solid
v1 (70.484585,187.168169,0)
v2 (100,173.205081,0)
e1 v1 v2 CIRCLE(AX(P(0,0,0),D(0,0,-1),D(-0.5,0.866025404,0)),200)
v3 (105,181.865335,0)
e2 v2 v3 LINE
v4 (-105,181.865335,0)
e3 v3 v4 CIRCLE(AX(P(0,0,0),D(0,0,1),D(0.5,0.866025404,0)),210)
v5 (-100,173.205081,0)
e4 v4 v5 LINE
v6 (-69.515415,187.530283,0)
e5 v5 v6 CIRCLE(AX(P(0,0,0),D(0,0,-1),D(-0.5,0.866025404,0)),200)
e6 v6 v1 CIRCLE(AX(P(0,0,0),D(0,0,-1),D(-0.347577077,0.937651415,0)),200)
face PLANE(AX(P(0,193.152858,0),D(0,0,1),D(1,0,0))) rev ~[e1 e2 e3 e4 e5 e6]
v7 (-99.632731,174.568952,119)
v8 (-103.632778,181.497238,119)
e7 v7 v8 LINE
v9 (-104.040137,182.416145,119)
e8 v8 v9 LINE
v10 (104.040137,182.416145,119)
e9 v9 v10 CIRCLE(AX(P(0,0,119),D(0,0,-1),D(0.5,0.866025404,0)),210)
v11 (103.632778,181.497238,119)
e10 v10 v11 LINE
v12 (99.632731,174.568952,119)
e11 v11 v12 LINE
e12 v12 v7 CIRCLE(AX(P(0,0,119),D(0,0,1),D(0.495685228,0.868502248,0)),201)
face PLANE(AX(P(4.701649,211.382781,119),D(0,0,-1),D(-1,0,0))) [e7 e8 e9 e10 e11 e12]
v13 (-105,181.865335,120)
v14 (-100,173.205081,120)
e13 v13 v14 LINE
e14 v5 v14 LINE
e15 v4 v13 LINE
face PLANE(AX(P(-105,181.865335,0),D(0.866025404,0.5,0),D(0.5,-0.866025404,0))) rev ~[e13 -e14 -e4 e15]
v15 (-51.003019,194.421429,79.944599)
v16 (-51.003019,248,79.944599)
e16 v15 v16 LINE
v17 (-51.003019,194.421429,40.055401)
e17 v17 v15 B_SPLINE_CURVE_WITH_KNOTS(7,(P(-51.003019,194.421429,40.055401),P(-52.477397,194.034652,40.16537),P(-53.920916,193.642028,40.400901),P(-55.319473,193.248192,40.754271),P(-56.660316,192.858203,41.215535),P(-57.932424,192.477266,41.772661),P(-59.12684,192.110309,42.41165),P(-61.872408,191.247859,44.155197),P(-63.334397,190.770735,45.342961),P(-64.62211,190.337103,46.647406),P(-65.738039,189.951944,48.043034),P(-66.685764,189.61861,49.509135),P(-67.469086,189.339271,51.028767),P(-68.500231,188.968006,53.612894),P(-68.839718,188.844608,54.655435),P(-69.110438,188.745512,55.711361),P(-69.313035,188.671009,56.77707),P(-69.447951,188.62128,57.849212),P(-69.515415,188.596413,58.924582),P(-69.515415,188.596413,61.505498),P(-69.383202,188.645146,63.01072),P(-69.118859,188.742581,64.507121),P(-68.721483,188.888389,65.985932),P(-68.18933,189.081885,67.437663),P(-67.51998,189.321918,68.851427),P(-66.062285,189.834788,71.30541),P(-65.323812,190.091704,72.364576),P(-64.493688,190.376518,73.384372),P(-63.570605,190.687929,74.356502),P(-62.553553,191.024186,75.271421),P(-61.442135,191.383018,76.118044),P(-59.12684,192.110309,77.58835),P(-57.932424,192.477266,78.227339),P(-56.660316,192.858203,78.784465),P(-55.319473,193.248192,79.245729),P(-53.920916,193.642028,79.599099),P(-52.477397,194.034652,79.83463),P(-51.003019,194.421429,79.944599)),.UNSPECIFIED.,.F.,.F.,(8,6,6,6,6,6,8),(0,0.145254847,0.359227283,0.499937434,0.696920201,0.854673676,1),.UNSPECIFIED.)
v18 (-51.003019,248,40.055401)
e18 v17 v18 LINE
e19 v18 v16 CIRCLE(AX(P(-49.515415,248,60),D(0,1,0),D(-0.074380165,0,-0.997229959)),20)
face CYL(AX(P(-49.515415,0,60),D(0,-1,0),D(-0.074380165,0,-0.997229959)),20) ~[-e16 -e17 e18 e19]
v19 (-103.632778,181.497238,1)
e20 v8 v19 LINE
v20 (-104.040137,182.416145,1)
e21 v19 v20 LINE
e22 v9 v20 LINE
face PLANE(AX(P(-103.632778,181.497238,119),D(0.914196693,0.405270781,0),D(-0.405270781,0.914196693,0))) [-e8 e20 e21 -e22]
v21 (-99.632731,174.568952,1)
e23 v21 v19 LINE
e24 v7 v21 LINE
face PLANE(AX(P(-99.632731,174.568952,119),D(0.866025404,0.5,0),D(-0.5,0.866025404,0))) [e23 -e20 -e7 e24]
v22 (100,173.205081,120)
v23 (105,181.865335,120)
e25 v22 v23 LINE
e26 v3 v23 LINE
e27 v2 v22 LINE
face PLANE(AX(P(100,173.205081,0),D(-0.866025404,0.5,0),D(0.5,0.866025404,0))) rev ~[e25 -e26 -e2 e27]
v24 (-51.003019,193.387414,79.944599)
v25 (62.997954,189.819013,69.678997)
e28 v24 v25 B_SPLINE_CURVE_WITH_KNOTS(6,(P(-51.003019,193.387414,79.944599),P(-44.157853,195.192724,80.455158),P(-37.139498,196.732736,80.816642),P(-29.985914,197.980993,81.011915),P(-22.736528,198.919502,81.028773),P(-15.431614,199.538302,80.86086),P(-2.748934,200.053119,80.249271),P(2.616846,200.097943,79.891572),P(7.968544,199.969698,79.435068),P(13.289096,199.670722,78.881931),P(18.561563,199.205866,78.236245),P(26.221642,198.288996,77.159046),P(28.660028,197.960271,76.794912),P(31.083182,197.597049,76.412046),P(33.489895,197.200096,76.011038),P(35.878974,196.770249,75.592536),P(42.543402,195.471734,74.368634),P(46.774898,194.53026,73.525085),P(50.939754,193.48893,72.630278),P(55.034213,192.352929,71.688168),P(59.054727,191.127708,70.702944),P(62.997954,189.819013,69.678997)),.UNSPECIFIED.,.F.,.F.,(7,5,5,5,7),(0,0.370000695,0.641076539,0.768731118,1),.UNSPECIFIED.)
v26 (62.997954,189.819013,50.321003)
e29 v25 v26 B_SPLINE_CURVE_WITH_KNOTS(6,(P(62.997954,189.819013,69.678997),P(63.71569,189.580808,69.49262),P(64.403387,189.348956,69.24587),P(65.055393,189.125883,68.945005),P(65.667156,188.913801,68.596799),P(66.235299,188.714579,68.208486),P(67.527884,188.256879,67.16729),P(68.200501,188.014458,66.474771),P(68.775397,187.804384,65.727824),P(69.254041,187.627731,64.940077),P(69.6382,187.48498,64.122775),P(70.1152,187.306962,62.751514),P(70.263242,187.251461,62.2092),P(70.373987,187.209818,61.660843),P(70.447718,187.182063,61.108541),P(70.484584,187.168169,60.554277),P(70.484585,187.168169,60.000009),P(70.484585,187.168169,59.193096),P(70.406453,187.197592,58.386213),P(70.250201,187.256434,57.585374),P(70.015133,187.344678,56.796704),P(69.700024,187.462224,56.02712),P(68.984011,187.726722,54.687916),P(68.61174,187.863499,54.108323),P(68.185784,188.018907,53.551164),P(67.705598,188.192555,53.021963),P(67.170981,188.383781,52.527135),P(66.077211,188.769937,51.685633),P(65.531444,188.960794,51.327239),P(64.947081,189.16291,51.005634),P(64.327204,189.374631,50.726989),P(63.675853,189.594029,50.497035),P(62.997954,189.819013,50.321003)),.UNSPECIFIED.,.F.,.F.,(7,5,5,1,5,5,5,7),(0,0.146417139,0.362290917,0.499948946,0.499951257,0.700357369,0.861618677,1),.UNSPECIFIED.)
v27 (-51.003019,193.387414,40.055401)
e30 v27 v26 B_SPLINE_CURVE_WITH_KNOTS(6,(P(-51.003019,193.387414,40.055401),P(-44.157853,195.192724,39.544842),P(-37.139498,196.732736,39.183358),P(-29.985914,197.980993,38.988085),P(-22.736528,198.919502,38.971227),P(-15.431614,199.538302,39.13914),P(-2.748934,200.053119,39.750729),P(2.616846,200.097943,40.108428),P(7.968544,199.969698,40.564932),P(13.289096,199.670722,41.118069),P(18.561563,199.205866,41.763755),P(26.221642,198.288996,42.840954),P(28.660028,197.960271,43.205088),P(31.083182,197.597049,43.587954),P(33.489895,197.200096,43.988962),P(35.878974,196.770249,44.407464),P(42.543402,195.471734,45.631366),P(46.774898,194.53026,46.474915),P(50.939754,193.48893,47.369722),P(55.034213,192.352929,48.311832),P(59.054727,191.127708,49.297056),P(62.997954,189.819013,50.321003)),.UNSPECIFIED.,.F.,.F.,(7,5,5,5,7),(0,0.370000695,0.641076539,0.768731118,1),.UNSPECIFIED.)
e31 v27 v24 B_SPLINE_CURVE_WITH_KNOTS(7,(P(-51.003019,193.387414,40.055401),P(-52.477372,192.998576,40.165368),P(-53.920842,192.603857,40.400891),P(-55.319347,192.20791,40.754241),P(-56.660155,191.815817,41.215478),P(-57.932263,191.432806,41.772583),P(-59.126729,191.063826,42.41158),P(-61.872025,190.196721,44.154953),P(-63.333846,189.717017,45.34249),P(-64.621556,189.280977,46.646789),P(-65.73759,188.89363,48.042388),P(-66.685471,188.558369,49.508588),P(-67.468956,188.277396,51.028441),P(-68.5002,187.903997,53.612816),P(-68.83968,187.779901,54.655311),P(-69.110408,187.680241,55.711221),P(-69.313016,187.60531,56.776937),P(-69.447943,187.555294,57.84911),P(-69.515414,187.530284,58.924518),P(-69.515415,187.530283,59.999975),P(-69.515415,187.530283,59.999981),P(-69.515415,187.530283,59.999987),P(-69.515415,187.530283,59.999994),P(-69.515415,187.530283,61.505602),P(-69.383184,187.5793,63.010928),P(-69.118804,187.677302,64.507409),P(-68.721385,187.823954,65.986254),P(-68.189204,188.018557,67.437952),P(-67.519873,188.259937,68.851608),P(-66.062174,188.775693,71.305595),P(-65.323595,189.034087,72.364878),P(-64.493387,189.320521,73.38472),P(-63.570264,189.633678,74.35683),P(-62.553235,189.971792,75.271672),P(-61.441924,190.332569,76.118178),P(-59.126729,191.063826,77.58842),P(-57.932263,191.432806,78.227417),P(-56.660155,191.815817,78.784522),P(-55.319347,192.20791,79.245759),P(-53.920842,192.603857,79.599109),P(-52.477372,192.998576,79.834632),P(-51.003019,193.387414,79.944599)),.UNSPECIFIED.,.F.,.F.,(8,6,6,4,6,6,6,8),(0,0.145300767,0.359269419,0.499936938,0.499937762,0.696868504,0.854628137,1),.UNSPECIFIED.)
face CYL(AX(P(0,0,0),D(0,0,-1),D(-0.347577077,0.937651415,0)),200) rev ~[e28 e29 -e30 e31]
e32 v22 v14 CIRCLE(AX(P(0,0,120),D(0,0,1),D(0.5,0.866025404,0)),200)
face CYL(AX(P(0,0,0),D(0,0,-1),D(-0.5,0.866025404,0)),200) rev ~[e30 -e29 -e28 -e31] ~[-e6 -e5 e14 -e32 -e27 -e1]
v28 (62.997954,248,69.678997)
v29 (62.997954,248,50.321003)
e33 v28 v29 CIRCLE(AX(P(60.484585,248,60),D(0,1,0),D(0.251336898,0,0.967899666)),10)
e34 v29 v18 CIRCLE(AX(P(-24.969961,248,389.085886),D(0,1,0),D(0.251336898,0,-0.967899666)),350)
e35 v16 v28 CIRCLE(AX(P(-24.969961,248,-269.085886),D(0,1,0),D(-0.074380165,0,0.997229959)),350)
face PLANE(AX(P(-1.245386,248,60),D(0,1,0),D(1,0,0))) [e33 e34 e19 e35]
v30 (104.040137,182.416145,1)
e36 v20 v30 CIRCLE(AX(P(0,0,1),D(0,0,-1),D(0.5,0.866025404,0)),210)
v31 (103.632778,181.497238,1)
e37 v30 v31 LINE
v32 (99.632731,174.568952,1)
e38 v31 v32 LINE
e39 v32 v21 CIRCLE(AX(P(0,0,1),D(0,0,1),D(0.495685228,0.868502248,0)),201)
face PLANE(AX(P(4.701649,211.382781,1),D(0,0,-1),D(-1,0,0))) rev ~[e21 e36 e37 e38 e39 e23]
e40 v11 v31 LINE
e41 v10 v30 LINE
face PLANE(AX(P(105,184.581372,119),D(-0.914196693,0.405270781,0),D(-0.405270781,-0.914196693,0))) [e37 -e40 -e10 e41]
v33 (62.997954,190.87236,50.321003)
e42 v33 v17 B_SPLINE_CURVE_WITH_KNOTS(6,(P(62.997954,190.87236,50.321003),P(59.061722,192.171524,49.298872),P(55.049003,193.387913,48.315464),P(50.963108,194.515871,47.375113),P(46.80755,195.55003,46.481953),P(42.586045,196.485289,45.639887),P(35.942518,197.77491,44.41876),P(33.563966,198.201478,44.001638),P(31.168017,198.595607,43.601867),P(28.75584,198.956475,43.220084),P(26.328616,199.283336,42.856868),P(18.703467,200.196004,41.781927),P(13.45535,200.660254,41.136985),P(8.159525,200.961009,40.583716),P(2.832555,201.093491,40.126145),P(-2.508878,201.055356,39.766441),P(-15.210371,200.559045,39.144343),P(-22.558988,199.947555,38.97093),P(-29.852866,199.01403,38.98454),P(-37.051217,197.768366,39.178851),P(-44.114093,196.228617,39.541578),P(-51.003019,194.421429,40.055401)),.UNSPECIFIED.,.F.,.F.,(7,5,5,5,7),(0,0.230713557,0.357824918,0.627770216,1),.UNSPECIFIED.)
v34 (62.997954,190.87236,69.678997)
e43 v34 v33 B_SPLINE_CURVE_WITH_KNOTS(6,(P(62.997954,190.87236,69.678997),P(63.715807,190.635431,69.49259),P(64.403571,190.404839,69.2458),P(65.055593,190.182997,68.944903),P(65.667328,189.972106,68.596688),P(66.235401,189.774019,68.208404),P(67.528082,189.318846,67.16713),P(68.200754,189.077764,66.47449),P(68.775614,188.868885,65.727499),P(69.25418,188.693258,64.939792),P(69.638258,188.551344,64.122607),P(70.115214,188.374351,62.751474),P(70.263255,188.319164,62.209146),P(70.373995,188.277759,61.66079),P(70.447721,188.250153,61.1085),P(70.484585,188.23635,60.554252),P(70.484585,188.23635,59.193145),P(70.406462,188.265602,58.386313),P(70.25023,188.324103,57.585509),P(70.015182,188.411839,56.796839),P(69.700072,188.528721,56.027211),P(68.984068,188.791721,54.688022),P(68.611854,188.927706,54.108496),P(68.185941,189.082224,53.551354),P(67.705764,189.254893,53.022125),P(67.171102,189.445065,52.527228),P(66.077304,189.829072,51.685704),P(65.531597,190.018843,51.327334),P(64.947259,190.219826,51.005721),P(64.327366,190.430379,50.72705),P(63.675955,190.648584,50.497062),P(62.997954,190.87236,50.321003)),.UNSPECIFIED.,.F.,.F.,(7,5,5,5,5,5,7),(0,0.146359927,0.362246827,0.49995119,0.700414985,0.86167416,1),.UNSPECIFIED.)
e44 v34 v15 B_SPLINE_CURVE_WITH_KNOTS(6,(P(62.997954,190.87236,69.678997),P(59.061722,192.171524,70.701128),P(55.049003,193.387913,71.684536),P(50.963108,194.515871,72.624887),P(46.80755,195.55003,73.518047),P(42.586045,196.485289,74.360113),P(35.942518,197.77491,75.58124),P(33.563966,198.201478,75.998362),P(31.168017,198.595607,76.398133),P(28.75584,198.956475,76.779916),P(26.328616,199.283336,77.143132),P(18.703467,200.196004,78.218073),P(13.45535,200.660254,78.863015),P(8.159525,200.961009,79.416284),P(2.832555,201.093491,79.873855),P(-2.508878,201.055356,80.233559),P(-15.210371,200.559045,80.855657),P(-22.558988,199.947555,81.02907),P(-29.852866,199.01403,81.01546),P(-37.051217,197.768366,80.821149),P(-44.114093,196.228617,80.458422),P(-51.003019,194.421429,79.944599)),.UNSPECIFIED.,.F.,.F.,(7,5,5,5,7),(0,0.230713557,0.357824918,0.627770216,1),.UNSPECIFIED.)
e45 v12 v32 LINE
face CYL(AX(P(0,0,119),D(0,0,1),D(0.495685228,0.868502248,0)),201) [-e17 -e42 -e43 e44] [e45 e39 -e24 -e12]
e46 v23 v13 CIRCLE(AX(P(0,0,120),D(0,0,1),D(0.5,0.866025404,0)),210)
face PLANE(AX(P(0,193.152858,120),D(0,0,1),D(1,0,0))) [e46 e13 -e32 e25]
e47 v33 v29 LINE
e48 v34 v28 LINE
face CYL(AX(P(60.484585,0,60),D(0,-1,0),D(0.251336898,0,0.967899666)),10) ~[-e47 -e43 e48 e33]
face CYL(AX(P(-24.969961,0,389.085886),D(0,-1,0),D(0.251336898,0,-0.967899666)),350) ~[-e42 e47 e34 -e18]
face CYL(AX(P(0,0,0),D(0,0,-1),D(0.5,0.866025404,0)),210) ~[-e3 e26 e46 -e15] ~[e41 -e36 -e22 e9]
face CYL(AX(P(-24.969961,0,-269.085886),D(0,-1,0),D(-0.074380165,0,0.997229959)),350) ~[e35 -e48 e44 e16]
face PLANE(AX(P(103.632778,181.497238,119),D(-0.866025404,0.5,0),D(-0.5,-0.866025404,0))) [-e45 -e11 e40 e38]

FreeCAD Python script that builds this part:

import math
import FreeCAD as App
import Part
import Sketcher
from FreeCAD import Vector
Q = App.Units.Quantity

doc = App.newDocument("Part")
body = doc.addObject("PartDesign::Body", "Body")

sketch1 = doc.addObject("Sketcher::SketchObject", "Sketch")
body.addObject(sketch1)
sketch1.AttachmentSupport = (doc.XY_Plane, [""])
sketch1.MapMode = "FlatFace"
sketch1.addGeometry([
    Part.LineSegment(Vector(-105, 181.865335, 0), Vector(-100, 173.205081, 0)),
    Part.ArcOfCircle(Part.Circle(Vector(0, 0, 0), Vector(0, 0, 1), 200), math.radians(60), math.radians(120)),
    Part.LineSegment(Vector(100, 173.205081, 0), Vector(105, 181.865335, 0)),
    Part.ArcOfCircle(Part.Circle(Vector(0, 0, 0), Vector(0, 0, 1), 210), math.radians(60), math.radians(120)),
], False)
sketch1.addConstraint([
    Sketcher.Constraint("Coincident", 0, 2, 1, 2),
    Sketcher.Constraint("Coincident", 1, 1, 2, 1),
    Sketcher.Constraint("Coincident", 2, 2, 3, 1),
    Sketcher.Constraint("Coincident", 3, 2, 0, 1),
    Sketcher.Constraint("Coincident", 1, 3, -1, 1),
    Sketcher.Constraint("Coincident", 3, 3, -1, 1),
    Sketcher.Constraint("Horizontal", 0, 2, 1, 1),
    Sketcher.Constraint("Horizontal", 2, 2, 3, 2),
    Sketcher.Constraint("Radius", 1, 200.0),
    Sketcher.Constraint("Radius", 3, 210.0),
    Sketcher.Constraint("Angle", 0, Q("-60 deg")),
    Sketcher.Constraint("DistanceX", 0, 2, -1, 1, 100.0),
])
pad1 = doc.addObject("PartDesign::Pad", "Pad")
body.addObject(pad1)
pad1.Profile = sketch1
pad1.Length = 120

sketch2 = doc.addObject("Sketcher::SketchObject", "Sketch001")
body.addObject(sketch2)
sketch2.AttachmentSupport = (doc.XY_Plane, [""])
sketch2.MapMode = "FlatFace"
sketch2.AttachmentOffset = App.Placement(Vector(0, 0, 119), App.Rotation())
sketch2.addGeometry([
    Part.ArcOfCircle(Part.Circle(Vector(0, 0, 0), Vector(0, 0, 1), 201), math.radians(60.285055), math.radians(119.714945)),
    Part.LineSegment(Vector(99.632731, 174.568952, 0), Vector(103.632778, 181.497238, 0)),
    Part.LineSegment(Vector(103.632778, 181.497238, 0), Vector(105, 184.581372, 0)),
    Part.LineSegment(Vector(105, 184.581372, 0), Vector(38.612236, 274.588583, 0)),
    Part.LineSegment(Vector(38.612236, 274.588583, 0), Vector(-105, 184.581372, 0)),
    Part.LineSegment(Vector(-105, 184.581372, 0), Vector(-103.632778, 181.497238, 0)),
    Part.LineSegment(Vector(-103.632778, 181.497238, 0), Vector(-99.632731, 174.568952, 0)),
], False)
sketch2.addConstraint([
    Sketcher.Constraint("Coincident", 0, 1, 1, 1),
    Sketcher.Constraint("Coincident", 1, 2, 2, 1),
    Sketcher.Constraint("Coincident", 2, 2, 3, 1),
    Sketcher.Constraint("Coincident", 3, 2, 4, 1),
    Sketcher.Constraint("Coincident", 4, 2, 5, 1),
    Sketcher.Constraint("Coincident", 5, 2, 6, 1),
    Sketcher.Constraint("Coincident", 6, 2, 0, 2),
    Sketcher.Constraint("Coincident", 0, 3, -1, 1),
    Sketcher.Constraint("Symmetric", 2, 2, 4, 2, -2),
    Sketcher.Constraint("Symmetric", 1, 2, 5, 2, -2),
    Sketcher.Constraint("Horizontal", 0, 1, 6, 2),
    Sketcher.Constraint("Radius", 0, 201.0),
    Sketcher.Constraint("Angle", 1, Q("60 deg")),
    Sketcher.Constraint("DistanceX", -1, 1, 2, 2, 105.0),
    Sketcher.Constraint("Distance", 3, 111.842002),
    Sketcher.Constraint("Distance", 2, 3.3736),
    Sketcher.Constraint("Distance", 4, 169.486791),
    Sketcher.Constraint("DistanceX", -1, 1, 0, 1, 99.632731),
    Sketcher.Constraint("DistanceX", -1, 1, 1, 2, 103.632778),
])
pocket1 = doc.addObject("PartDesign::Pocket", "Pocket")
body.addObject(pocket1)
pocket1.Profile = sketch2
pocket1.Length = 118

sketch3 = doc.addObject("Sketcher::SketchObject", "Sketch002")
body.addObject(sketch3)
sketch3.AttachmentSupport = (doc.XZ_Plane, [""])
sketch3.MapMode = "FlatFace"
sketch3.addGeometry([
    Part.ArcOfCircle(Part.Circle(Vector(-49.515415, 60, 0), Vector(0, 0, 1), 20), math.radians(94.265609), math.radians(265.734391)),
    Part.ArcOfCircle(Part.Circle(Vector(-24.969961, -269.085886, 0), Vector(0, 0, 1), 350), math.radians(75.443363), math.radians(94.265609)),
    Part.ArcOfCircle(Part.Circle(Vector(60.484585, 60, 0), Vector(0, 0, 1), 10), math.radians(-75.443363), math.radians(75.443363)),
    Part.ArcOfCircle(Part.Circle(Vector(-24.969961, 389.085886, 0), Vector(0, 0, 1), 350), math.radians(-94.265609), math.radians(-75.443363)),
], False)
sketch3.addConstraint([
    Sketcher.Constraint("Tangent", 0, 1, 1, 2),
    Sketcher.Constraint("Tangent", 1, 1, 2, 2),
    Sketcher.Constraint("Tangent", 2, 1, 3, 2),
    Sketcher.Constraint("Tangent", 3, 1, 0, 2),
    Sketcher.Constraint("Equal", 1, 3),
    Sketcher.Constraint("Horizontal", 0, 3, 2, 3),
    Sketcher.Constraint("Radius", 0, 20.0),
    Sketcher.Constraint("Radius", 1, 350.0),
    Sketcher.Constraint("Radius", 2, 10.0),
    Sketcher.Constraint("DistanceY", -1, 1, 0, 3, 60.0),
    Sketcher.Constraint("DistanceX", 0, 3, 2, 3, 110.0),
    Sketcher.Constraint("DistanceX", 1, 3, -1, 1, 24.969961),
])
pad2 = doc.addObject("PartDesign::Pad", "Pad001")
body.addObject(pad2)
pad2.Profile = sketch3
pad2.Length = 248
pad2.Reversed = True

sketch4 = doc.addObject("Sketcher::SketchObject", "Sketch003")
body.addObject(sketch4)
sketch4.AttachmentSupport = (doc.XY_Plane, [""])
sketch4.MapMode = "FlatFace"
sketch4.addGeometry([
    Part.LineSegment(Vector(163.146782, -79.750207, 0), Vector(70.484585, 187.168169, 0)),
    Part.ArcOfCircle(Part.Circle(Vector(0, 0, 0), Vector(0, 0, 1), 200), math.radians(69.364416), math.radians(110.33919)),
    Part.LineSegment(Vector(-69.515415, 187.530283, 0), Vector(-229.131099, -106.991726, 0)),
    Part.LineSegment(Vector(-229.131099, -106.991726, 0), Vector(163.146782, -79.750207, 0)),
], False)
sketch4.addConstraint([
    Sketcher.Constraint("Coincident", 0, 2, 1, 1),
    Sketcher.Constraint("Coincident", 1, 2, 2, 1),
    Sketcher.Constraint("Coincident", 2, 2, 3, 1),
    Sketcher.Constraint("Coincident", 3, 2, 0, 1),
    Sketcher.Constraint("Coincident", 1, 3, -1, 1),
    Sketcher.Constraint("Radius", 1, 200.0),
    Sketcher.Constraint("DistanceX", 1, 2, 0, 2, 140.0),
    Sketcher.Constraint("DistanceX", 2, 2, -1, 1, 229.131099),
    Sketcher.Constraint("Distance", 3, 393.222629),
    Sketcher.Constraint("DistanceY", -1, 1, 0, 2, 187.168169),
    Sketcher.Constraint("DistanceX", -1, 1, 3, 2, 163.146782),
    Sketcher.Constraint("DistanceY", 2, 2, 1, 2, 294.522009),
])
pocket2 = doc.addObject("PartDesign::Pocket", "Pocket001")
body.addObject(pocket2)
pocket2.Profile = sketch4
pocket2.Length = 269
pocket2.Reversed = True

doc.recompute()
